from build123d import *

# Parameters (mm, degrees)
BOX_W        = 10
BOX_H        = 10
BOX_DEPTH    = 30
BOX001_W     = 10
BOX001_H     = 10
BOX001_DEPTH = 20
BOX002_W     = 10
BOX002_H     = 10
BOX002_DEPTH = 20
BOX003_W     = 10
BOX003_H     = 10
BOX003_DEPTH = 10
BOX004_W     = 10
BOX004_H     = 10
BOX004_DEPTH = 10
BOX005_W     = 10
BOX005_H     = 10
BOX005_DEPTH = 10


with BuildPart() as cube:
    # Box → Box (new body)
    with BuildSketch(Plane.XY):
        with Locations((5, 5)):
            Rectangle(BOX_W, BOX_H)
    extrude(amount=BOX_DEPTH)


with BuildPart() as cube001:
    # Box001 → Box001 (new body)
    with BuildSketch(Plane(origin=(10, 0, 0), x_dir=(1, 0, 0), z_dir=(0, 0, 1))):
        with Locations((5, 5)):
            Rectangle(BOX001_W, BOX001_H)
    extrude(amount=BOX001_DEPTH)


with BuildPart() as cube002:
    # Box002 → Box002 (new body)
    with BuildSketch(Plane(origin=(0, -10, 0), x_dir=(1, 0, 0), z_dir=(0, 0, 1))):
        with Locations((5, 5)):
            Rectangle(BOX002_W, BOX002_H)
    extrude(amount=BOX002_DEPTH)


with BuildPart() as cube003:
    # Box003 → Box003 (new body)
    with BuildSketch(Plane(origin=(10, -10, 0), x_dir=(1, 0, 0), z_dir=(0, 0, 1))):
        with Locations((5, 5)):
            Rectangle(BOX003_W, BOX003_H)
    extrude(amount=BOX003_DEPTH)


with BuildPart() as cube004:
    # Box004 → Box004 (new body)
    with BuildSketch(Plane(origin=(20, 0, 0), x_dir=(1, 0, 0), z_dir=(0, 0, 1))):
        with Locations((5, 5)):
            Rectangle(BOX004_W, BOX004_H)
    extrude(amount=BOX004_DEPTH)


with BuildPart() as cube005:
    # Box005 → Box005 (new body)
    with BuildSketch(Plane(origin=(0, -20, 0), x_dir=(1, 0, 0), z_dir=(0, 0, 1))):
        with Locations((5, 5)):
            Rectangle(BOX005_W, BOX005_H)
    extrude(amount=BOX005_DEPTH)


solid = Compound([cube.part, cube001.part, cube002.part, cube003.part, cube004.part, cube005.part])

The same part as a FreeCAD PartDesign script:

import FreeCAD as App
import Part
import Sketcher
from FreeCAD import Vector
Q = App.Units.Quantity


def add_polygon(sketch, points):
    """Adds a closed chain of lines whose ends are joined by coincident constraints."""
    first, n = sketch.GeometryCount, len(points)
    for a, b in zip(points, points[1:] + points[:1]):
        sketch.addGeometry(Part.LineSegment(App.Vector(*a, 0), App.Vector(*b, 0)), False)
    for i in range(n):
        sketch.addConstraint(Sketcher.Constraint("Coincident", first + i, 2, first + (i + 1) % n, 1))

doc = App.newDocument("Part")
body = doc.addObject("PartDesign::Body", "Body")

# Sketch on XY plane
sketch1 = body.newObject("Sketcher::SketchObject", "Sketch")
sketch1.AttachmentSupport = (doc.getObject("XY_Plane"), [""])
sketch1.MapMode = "FlatFace"
add_polygon(sketch1, [(0, 10), (0, 0), (10, 0), (10, 10)])  # lines 0-3
sketch1.addConstraint(Sketcher.Constraint("Vertical", 0))
sketch1.addConstraint(Sketcher.Constraint("Horizontal", 1))
sketch1.addConstraint(Sketcher.Constraint("Vertical", 2))
sketch1.addConstraint(Sketcher.Constraint("Horizontal", 3))
sketch1.addConstraint(Sketcher.Constraint("Coincident", 0, 2, -1, 1))
sketch1.addConstraint(Sketcher.Constraint("Equal", 3, 0))
sketch1.addConstraint(Sketcher.Constraint("DistanceX", 1, 1, 1, 2, Q("10 mm")))
pad1 = body.newObject("PartDesign::Pad", "Pad")
pad1.Profile = sketch1
pad1.Length = 30
body2 = doc.addObject("PartDesign::Body", "Body001")

# Sketch on XY plane
sketch2 = body2.newObject("Sketcher::SketchObject", "Sketch001")
sketch2.AttachmentSupport = (doc.getObject("XY_Plane001"), [""])
sketch2.MapMode = "FlatFace"
add_polygon(sketch2, [(10, 10), (10, 0), (20, 0), (20, 10)])  # lines 0-3
sketch2.addConstraint(Sketcher.Constraint("Vertical", 0))
sketch2.addConstraint(Sketcher.Constraint("Horizontal", 1))
sketch2.addConstraint(Sketcher.Constraint("Vertical", 2))
sketch2.addConstraint(Sketcher.Constraint("Horizontal", 3))
sketch2.addConstraint(Sketcher.Constraint("PointOnObject", 0, 2, -1))
sketch2.addConstraint(Sketcher.Constraint("Equal", 3, 0))
sketch2.addConstraint(Sketcher.Constraint("DistanceX", 1, 1, 1, 2, Q("10 mm")))
sketch2.addConstraint(Sketcher.Constraint("DistanceX", -1, 1, 0, 2, Q("10 mm")))
pad2 = body2.newObject("PartDesign::Pad", "Pad001")
pad2.Profile = sketch2
pad2.Length = 20
body3 = doc.addObject("PartDesign::Body", "Body002")

# Sketch on XY plane
sketch3 = body3.newObject("Sketcher::SketchObject", "Sketch002")
sketch3.AttachmentSupport = (doc.getObject("XY_Plane002"), [""])
sketch3.MapMode = "FlatFace"
add_polygon(sketch3, [(0, 0), (0, -10), (10, -10), (10, 0)])  # lines 0-3
sketch3.addConstraint(Sketcher.Constraint("Vertical", 0))
sketch3.addConstraint(Sketcher.Constraint("Horizontal", 1))
sketch3.addConstraint(Sketcher.Constraint("Vertical", 2))
sketch3.addConstraint(Sketcher.Constraint("Horizontal", 3))
sketch3.addConstraint(Sketcher.Constraint("Coincident", 3, 2, -1, 1))
sketch3.addConstraint(Sketcher.Constraint("Equal", 3, 0))
sketch3.addConstraint(Sketcher.Constraint("DistanceX", 1, 1, 1, 2, Q("10 mm")))
pad3 = body3.newObject("PartDesign::Pad", "Pad002")
pad3.Profile = sketch3
pad3.Length = 20
body4 = doc.addObject("PartDesign::Body", "Body003")

# Sketch on XY plane
sketch4 = body4.newObject("Sketcher::SketchObject", "Sketch003")
sketch4.AttachmentSupport = (doc.getObject("XY_Plane003"), [""])
sketch4.MapMode = "FlatFace"
add_polygon(sketch4, [(10, 0), (10, -10), (20, -10), (20, 0)])  # lines 0-3
sketch4.addConstraint(Sketcher.Constraint("Vertical", 0))
sketch4.addConstraint(Sketcher.Constraint("Horizontal", 1))
sketch4.addConstraint(Sketcher.Constraint("Vertical", 2))
sketch4.addConstraint(Sketcher.Constraint("Horizontal", 3))
sketch4.addConstraint(Sketcher.Constraint("PointOnObject", 2, 2, -1))
sketch4.addConstraint(Sketcher.Constraint("Equal", 3, 0))
sketch4.addConstraint(Sketcher.Constraint("DistanceX", 1, 1, 1, 2, Q("10 mm")))
sketch4.addConstraint(Sketcher.Constraint("DistanceX", -1, 1, 0, 2, Q("10 mm")))
pad4 = body4.newObject("PartDesign::Pad", "Pad003")
pad4.Profile = sketch4
pad4.Length = 10
body5 = doc.addObject("PartDesign::Body", "Body004")

# Sketch on XY plane
sketch5 = body5.newObject("Sketcher::SketchObject", "Sketch004")
sketch5.AttachmentSupport = (doc.getObject("XY_Plane004"), [""])
sketch5.MapMode = "FlatFace"
add_polygon(sketch5, [(20, 10), (20, 0), (30, 0), (30, 10)])  # lines 0-3
sketch5.addConstraint(Sketcher.Constraint("Vertical", 0))
sketch5.addConstraint(Sketcher.Constraint("Horizontal", 1))
sketch5.addConstraint(Sketcher.Constraint("Vertical", 2))
sketch5.addConstraint(Sketcher.Constraint("Horizontal", 3))
sketch5.addConstraint(Sketcher.Constraint("PointOnObject", 0, 2, -1))
sketch5.addConstraint(Sketcher.Constraint("Equal", 3, 0))
sketch5.addConstraint(Sketcher.Constraint("DistanceX", 1, 1, 1, 2, Q("10 mm")))
sketch5.addConstraint(Sketcher.Constraint("DistanceX", -1, 1, 0, 2, Q("20 mm")))
pad5 = body5.newObject("PartDesign::Pad", "Pad004")
pad5.Profile = sketch5
pad5.Length = 10
body6 = doc.addObject("PartDesign::Body", "Body005")

# Sketch on XY plane
sketch6 = body6.newObject("Sketcher::SketchObject", "Sketch005")
sketch6.AttachmentSupport = (doc.getObject("XY_Plane005"), [""])
sketch6.MapMode = "FlatFace"
add_polygon(sketch6, [(0, -10), (0, -20), (10, -20), (10, -10)])  # lines 0-3
sketch6.addConstraint(Sketcher.Constraint("Vertical", 0))
sketch6.addConstraint(Sketcher.Constraint("Horizontal", 1))
sketch6.addConstraint(Sketcher.Constraint("Vertical", 2))
sketch6.addConstraint(Sketcher.Constraint("Horizontal", 3))
sketch6.addConstraint(Sketcher.Constraint("PointOnObject", 0, 2, -2))
sketch6.addConstraint(Sketcher.Constraint("Equal", 3, 0))
sketch6.addConstraint(Sketcher.Constraint("DistanceX", 1, 1, 1, 2, Q("10 mm")))
sketch6.addConstraint(Sketcher.Constraint("DistanceY", 0, 2, -1, 1, Q("20 mm")))
pad6 = body6.newObject("PartDesign::Pad", "Pad005")
pad6.Profile = sketch6
pad6.Length = 10

doc.recompute()
